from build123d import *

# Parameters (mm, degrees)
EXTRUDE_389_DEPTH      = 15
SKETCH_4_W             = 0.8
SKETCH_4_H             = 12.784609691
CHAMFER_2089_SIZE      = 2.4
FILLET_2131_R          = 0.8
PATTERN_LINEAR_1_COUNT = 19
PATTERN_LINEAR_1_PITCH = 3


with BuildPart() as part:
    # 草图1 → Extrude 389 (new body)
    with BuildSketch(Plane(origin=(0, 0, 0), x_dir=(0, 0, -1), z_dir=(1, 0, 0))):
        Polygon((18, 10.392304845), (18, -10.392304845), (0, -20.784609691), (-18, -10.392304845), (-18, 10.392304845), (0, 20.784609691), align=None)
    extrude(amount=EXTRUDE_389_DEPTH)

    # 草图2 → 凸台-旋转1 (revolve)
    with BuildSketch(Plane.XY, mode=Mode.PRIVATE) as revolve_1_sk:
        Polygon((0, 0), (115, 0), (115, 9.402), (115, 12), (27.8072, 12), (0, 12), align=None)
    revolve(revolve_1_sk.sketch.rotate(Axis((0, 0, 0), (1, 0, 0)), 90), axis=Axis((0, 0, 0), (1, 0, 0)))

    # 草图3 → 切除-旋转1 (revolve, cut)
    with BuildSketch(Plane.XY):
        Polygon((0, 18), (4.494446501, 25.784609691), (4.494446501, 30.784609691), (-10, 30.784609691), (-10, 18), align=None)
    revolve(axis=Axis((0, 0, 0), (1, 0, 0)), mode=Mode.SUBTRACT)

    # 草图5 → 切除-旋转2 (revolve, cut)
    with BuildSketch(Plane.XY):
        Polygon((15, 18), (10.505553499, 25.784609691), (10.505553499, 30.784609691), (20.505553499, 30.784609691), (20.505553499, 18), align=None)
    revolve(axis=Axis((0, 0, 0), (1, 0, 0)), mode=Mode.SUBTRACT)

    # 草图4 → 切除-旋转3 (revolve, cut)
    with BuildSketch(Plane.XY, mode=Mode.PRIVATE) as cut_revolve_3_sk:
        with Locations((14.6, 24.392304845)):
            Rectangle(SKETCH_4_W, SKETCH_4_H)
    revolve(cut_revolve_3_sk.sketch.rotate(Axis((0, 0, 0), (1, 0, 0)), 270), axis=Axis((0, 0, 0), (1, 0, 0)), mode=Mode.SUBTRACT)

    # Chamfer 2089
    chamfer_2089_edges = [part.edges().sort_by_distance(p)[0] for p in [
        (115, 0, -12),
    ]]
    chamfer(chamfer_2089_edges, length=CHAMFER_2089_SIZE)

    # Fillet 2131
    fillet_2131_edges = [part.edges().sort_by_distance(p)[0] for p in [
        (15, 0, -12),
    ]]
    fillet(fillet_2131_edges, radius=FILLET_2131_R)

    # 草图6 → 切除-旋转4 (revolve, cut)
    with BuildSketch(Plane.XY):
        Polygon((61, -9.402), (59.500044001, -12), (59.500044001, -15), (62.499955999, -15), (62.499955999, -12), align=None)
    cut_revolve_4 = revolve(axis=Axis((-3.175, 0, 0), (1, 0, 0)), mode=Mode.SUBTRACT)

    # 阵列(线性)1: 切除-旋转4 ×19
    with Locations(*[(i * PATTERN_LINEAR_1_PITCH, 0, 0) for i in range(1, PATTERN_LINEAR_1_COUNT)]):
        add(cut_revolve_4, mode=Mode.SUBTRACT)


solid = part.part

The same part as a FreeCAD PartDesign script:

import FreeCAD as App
import Part
import Sketcher
from FreeCAD import Vector
Q = App.Units.Quantity


def edges_at(feature, points):
    """Names of the edges that pass closest to the given points."""
    edges = feature.Shape.Edges
    near = lambda p: min(range(len(edges)), key=lambda i: edges[i].distToShape(Part.Vertex(*p))[0])
    return sorted({f"Edge{near(p) + 1}" for p in points})


def add_polygon(sketch, points):
    """Adds a closed chain of lines whose ends are joined by coincident constraints."""
    first, n = sketch.GeometryCount, len(points)
    for a, b in zip(points, points[1:] + points[:1]):
        sketch.addGeometry(Part.LineSegment(App.Vector(*a, 0), App.Vector(*b, 0)), False)
    for i in range(n):
        sketch.addConstraint(Sketcher.Constraint("Coincident", first + i, 2, first + (i + 1) % n, 1))

doc = App.newDocument("Part")
body = doc.addObject("PartDesign::Body", "Body")

# Sketch on YZ plane
sketch1 = body.newObject("Sketcher::SketchObject", "Sketch")
sketch1.AttachmentSupport = (doc.getObject("YZ_Plane"), [""])
sketch1.MapMode = "FlatFace"
add_polygon(sketch1, [(-10, -18), (10, -18), (21, 0), (10, 18), (-10, 18), (-21, 0)])  # lines 0-5
sketch1.addConstraint([
    Sketcher.Constraint("Horizontal", 0),
    Sketcher.Constraint("Horizontal", 3),
    Sketcher.Constraint("Symmetric", 0, 2, 3, 2, -1, 1),
    Sketcher.Constraint("Symmetric", 1, 2, 4, 2, -1, 1),
    Sketcher.Constraint("PointOnObject", 1, 2, -1),
    Sketcher.Constraint("Parallel", 2, 5),
    Sketcher.Constraint("Vertical", 0, 2, 2, 2),
    Sketcher.Constraint("Angle", 1, Q("60 deg")),
    Sketcher.Constraint("DistanceY", 0, 2, -1, 1, 18.0),
    Sketcher.Constraint("DistanceX", 0, 1, 0, 2, 20.78461),
])
pad1 = body.newObject("PartDesign::Pad", "Pad")
pad1.Profile = sketch1
pad1.Length = 15

# Sketch on XY plane
sketch2 = body.newObject("Sketcher::SketchObject", "Sketch001")
sketch2.AttachmentSupport = (doc.getObject("XY_Plane"), [""])
sketch2.MapMode = "FlatFace"
add_polygon(sketch2, [(0, 0), (115, 0), (115, 12), (0, 12)])  # lines 0-3
sketch2.addConstraint([
    Sketcher.Constraint("Horizontal", 0),
    Sketcher.Constraint("Vertical", 1),
    Sketcher.Constraint("Horizontal", 2),
    Sketcher.Constraint("Vertical", 3),
    Sketcher.Constraint("Coincident", 3, 2, -1, 1),
    Sketcher.Constraint("DistanceX", 0, 1, 0, 2, 115.0),
    Sketcher.Constraint("DistanceY", 1, 1, 1, 2, 12.0),
])
revolution = body.newObject("PartDesign::Revolution", "Revolution")
revolution.Profile = sketch2
revolution.ReferenceAxis = (sketch2, ["H_Axis"])
revolution.Angle = 360

# Sketch on XY plane
sketch3 = body.newObject("Sketcher::SketchObject", "Sketch002")
sketch3.AttachmentSupport = (doc.getObject("XY_Plane"), [""])
sketch3.MapMode = "FlatFace"
add_polygon(sketch3, [(0, 18), (4, 26), (4, 31), (-10, 31), (-10, 18)])  # lines 0-4
sketch3.addConstraint([
    Sketcher.Constraint("Vertical", 1),
    Sketcher.Constraint("Horizontal", 2),
    Sketcher.Constraint("Vertical", 3),
    Sketcher.Constraint("Horizontal", 4),
    Sketcher.Constraint("PointOnObject", 4, 2, -2),
    Sketcher.Constraint("DistanceX", 4, 1, 4, 2, 10.0),
    Sketcher.Constraint("DistanceY", 1, 1, 1, 2, 5.0),
    Sketcher.Constraint("Angle", 0, Q("60 deg")),
    Sketcher.Constraint("DistanceY", -1, 1, 3, 2, 18.0),
    Sketcher.Constraint("DistanceY", 3, 2, 3, 1, 12.78461),
])
groove = body.newObject("PartDesign::Groove", "Groove")
groove.Profile = sketch3
groove.ReferenceAxis = (sketch3, ["H_Axis"])
groove.Angle = 360

# Sketch on XY plane
sketch4 = body.newObject("Sketcher::SketchObject", "Sketch003")
sketch4.AttachmentSupport = (doc.getObject("XY_Plane"), [""])
sketch4.MapMode = "FlatFace"
add_polygon(sketch4, [(11, 26), (15, 18), (21, 18), (21, 31), (11, 31)])  # lines 0-4
sketch4.addConstraint([
    Sketcher.Constraint("Horizontal", 1),
    Sketcher.Constraint("Vertical", 2),
    Sketcher.Constraint("Horizontal", 3),
    Sketcher.Constraint("Vertical", 4),
    Sketcher.Constraint("DistanceX", 3, 2, 3, 1, 10.0),
    Sketcher.Constraint("DistanceY", 4, 2, 4, 1, 5.0),
    Sketcher.Constraint("Angle", 0, Q("-60 deg")),
    Sketcher.Constraint("DistanceX", -1, 1, 0, 2, 15.0),
    Sketcher.Constraint("DistanceY", -1, 1, 0, 2, 18.0),
    Sketcher.Constraint("DistanceY", 2, 1, 2, 2, 12.78461),
])
groove2 = body.newObject("PartDesign::Groove", "Groove001")
groove2.Profile = sketch4
groove2.ReferenceAxis = (sketch4, ["H_Axis"])
groove2.Angle = 360

# Sketch on XY plane
sketch5 = body.newObject("Sketcher::SketchObject", "Sketch004")
sketch5.AttachmentSupport = (doc.getObject("XY_Plane"), [""])
sketch5.MapMode = "FlatFace"
add_polygon(sketch5, [(14.2, 30.8), (14.2, 18), (15, 18), (15, 30.8)])  # lines 0-3
sketch5.addConstraint([
    Sketcher.Constraint("Vertical", 0),
    Sketcher.Constraint("Horizontal", 1),
    Sketcher.Constraint("Vertical", 2),
    Sketcher.Constraint("Horizontal", 3),
    Sketcher.Constraint("DistanceX", 1, 1, 1, 2, 0.8),
    Sketcher.Constraint("DistanceY", -1, 1, 0, 2, 18.0),
    Sketcher.Constraint("DistanceX", -1, 1, 1, 2, 15.0),
    Sketcher.Constraint("DistanceY", 0, 2, 0, 1, 12.78461),
])
groove3 = body.newObject("PartDesign::Groove", "Groove002")
groove3.Profile = sketch5
groove3.ReferenceAxis = (sketch5, ["H_Axis"])
groove3.Angle = 360
doc.recompute()

chamfer = body.newObject("PartDesign::Chamfer", "Chamfer")
chamfer.Base = (groove3, edges_at(groove3, [(115, 0, -12)]))
chamfer.Size = 2.4
doc.recompute()

fillet = body.newObject("PartDesign::Fillet", "Fillet")
fillet.Base = (chamfer, edges_at(chamfer, [(15, 0, -12)]))
fillet.Radius = 0.8

# Sketch on XY plane
sketch6 = body.newObject("Sketcher::SketchObject", "Sketch005")
sketch6.AttachmentSupport = (doc.getObject("XY_Plane"), [""])
sketch6.MapMode = "FlatFace"
add_polygon(sketch6, [(61, -9.4), (59.5, -12), (59.5, -15), (62.5, -15), (62.5, -12)])  # lines 0-4
sketch6.addConstraint([
    Sketcher.Constraint("Vertical", 1),
    Sketcher.Constraint("Horizontal", 2),
    Sketcher.Constraint("Vertical", 3),
    Sketcher.Constraint("Horizontal", 0, 2, 3, 2),
    Sketcher.Constraint("Equal", 0, 4),
    Sketcher.Constraint("DistanceY", 1, 2, 1, 1, 3.0),
    Sketcher.Constraint("Angle", 0, Q("-120 deg")),
    Sketcher.Constraint("DistanceY", 0, 2, -1, 1, 12.0),
    Sketcher.Constraint("DistanceX", -1, 1, 4, 2, 61.0),
    Sketcher.Constraint("DistanceY", 4, 2, -1, 1, 9.402),
])
groove4 = body.newObject("PartDesign::Groove", "Groove003")
groove4.Profile = sketch6
groove4.ReferenceAxis = (sketch6, ["H_Axis"])
groove4.Angle = 360
doc.recompute()

linearpattern = body.newObject("PartDesign::LinearPattern", "LinearPattern")
linearpattern.Originals = [groove4]
linearpattern.Direction = (doc.getObject("X_Axis"), [""])
linearpattern.Mode = "offset"
linearpattern.Offset = 3
linearpattern.Occurrences = 19
body.Tip = linearpattern

doc.recompute()
